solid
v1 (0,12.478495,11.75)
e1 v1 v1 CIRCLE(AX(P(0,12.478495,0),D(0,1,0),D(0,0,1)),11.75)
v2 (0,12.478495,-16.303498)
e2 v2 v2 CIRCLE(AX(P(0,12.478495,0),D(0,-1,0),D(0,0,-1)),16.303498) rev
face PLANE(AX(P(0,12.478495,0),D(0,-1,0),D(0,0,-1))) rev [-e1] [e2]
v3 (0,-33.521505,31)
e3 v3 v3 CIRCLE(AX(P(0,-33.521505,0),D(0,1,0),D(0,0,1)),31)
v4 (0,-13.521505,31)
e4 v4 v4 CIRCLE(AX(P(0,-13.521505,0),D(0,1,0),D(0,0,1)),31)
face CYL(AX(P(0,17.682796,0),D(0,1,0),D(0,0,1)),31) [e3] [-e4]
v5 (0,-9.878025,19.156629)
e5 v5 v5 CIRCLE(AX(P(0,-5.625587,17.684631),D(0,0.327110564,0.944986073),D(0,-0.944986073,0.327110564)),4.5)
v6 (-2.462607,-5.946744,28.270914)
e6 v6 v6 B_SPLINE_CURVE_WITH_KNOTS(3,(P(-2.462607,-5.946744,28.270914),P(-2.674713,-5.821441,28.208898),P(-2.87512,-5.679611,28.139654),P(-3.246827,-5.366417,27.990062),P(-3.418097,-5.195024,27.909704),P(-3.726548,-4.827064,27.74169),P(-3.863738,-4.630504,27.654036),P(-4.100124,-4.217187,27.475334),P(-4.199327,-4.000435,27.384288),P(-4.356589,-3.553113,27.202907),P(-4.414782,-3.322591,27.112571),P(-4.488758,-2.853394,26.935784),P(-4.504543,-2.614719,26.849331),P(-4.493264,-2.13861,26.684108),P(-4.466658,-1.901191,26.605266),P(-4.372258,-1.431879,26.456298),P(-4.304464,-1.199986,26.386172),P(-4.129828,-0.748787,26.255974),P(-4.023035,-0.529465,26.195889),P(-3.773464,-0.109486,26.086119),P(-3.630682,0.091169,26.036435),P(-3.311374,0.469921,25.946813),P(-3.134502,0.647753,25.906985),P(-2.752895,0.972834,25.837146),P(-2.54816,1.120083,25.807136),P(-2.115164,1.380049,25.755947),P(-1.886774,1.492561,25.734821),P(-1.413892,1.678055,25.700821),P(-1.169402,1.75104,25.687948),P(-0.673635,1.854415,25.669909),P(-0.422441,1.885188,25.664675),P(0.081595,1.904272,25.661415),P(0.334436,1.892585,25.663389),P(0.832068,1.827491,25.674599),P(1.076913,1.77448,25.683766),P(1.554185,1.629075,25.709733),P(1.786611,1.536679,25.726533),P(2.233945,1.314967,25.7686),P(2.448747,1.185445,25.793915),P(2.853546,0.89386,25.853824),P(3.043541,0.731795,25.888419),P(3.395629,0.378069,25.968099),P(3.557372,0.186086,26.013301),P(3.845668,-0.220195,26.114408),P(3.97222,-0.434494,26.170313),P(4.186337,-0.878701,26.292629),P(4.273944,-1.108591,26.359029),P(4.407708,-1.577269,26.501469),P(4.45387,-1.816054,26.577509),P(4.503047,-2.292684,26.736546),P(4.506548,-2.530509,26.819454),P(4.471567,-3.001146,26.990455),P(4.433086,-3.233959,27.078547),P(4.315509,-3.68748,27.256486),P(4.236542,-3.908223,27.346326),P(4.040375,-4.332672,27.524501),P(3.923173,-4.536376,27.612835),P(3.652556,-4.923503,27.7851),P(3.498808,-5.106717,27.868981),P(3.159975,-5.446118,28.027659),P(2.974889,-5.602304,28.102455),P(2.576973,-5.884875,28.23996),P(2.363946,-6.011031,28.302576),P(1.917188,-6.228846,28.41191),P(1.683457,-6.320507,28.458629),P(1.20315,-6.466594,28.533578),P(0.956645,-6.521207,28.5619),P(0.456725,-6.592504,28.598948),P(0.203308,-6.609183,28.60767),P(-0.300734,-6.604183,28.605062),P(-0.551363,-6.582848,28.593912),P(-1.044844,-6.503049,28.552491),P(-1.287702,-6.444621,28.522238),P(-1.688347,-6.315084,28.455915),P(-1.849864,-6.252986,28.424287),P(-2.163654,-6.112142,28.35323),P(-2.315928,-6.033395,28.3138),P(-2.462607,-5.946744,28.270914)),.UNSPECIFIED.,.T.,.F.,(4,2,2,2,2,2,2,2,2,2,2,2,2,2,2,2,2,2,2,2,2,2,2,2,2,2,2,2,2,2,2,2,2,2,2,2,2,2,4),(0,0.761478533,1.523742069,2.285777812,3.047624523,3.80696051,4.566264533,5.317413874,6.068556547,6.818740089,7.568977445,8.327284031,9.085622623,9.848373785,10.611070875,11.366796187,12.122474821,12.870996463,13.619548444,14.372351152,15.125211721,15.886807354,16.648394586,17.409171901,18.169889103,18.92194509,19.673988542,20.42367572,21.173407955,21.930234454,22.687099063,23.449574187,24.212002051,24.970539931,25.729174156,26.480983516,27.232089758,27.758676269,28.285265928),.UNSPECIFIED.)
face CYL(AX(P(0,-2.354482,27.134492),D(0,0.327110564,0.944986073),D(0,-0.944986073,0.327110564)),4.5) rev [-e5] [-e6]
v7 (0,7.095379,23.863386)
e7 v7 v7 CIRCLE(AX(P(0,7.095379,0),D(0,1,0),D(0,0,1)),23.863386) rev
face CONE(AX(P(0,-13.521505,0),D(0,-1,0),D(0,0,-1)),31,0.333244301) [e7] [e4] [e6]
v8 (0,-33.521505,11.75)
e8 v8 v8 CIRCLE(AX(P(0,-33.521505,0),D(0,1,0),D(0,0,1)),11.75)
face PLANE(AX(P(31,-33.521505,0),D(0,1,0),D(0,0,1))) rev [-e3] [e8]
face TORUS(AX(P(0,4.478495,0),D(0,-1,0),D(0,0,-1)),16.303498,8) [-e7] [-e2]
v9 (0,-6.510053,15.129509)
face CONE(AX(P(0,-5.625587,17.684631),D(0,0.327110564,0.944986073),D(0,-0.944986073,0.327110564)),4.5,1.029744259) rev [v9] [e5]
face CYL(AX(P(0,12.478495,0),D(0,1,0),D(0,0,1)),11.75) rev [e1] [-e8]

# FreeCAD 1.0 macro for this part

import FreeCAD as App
import Part
import Sketcher

V = App.Vector
Q = App.Units.Quantity


def edges_at(feature, points):
    """Names of the edges that pass closest to the given points."""
    edges = feature.Shape.Edges
    near = lambda p: min(range(len(edges)), key=lambda i: edges[i].distToShape(Part.Vertex(*p))[0])
    return sorted({f"Edge{near(p) + 1}" for p in points})

doc = App.newDocument("Part")
body = doc.addObject("PartDesign::Body", "Body")

# Sketch on XY plane
sketch1 = body.newObject("Sketcher::SketchObject", "Sketch")
sketch1.AttachmentSupport = (doc.getObject("XY_Plane"), [""])
sketch1.MapMode = "FlatFace"
sketch1.addGeometry([
    Part.LineSegment(V(22, 12.478495, 0), V(0, 12.478495, 0)),  # 0
    Part.LineSegment(V(0, 12.478495, 0), V(0, -33.521505, 0)),  # 1
    Part.LineSegment(V(0, -33.521505, 0), V(31, -33.521505, 0)),  # 2
    Part.LineSegment(V(31, -33.521505, 0), V(31, -13.521505, 0)),  # 3
    Part.LineSegment(V(31, -13.521505, 0), V(22, 12.478495, 0)),  # 4
], False)
sketch1.addConstraint([
    Sketcher.Constraint("Coincident", 0, 2, 1, 1),
    Sketcher.Constraint("Coincident", 1, 2, 2, 1),
    Sketcher.Constraint("Coincident", 2, 2, 3, 1),
    Sketcher.Constraint("Coincident", 3, 2, 4, 1),
    Sketcher.Constraint("Coincident", 4, 2, 0, 1),
    Sketcher.Constraint("Horizontal", 0),
    Sketcher.Constraint("Vertical", 1),
    Sketcher.Constraint("Horizontal", 2),
    Sketcher.Constraint("Vertical", 3),
    Sketcher.Constraint("PointOnObject", 0, 2, -2),
    Sketcher.Constraint("DistanceX", 0, 2, 0, 1, Q("22 mm")),
    Sketcher.Constraint("DistanceX", 2, 1, 2, 2, Q("31 mm")),
    Sketcher.Constraint("DistanceY", 1, 2, 1, 1, Q("46 mm")),
    Sketcher.Constraint("DistanceY", 3, 1, 3, 2, Q("20 mm")),
    Sketcher.Constraint("DistanceY", -1, 1, 0, 2, Q("12.478495 mm")),
])
revolution = body.newObject("PartDesign::Revolution", "Revolution")
revolution.Profile = sketch1
revolution.ReferenceAxis = (sketch1, ["V_Axis"])
revolution.Angle = 360

# Sketch on XZ plane
sketch2 = body.newObject("Sketcher::SketchObject", "Sketch001")
sketch2.AttachmentSupport = (doc.getObject("XZ_Plane"), [""])
sketch2.MapMode = "FlatFace"
sketch2.AttachmentOffset = App.Placement(V(0, 0, -12.478495), App.Rotation())
sketch2.addGeometry(Part.Circle(V(0, 0, 0), V(0, 0, 1), 11.75), False)
sketch2.addConstraint([
    Sketcher.Constraint("Coincident", 0, 3, -1, 1),
    Sketcher.Constraint("Diameter", 0, Q("23.5 mm")),
])
doc.recompute()
hole = body.newObject("PartDesign::Hole", "Hole")
hole.Profile = sketch2
hole.ThreadType = "None"
hole.Diameter = 23.5
hole.DepthType = "ThroughAll"
hole.Reversed = True
doc.recompute()

fillet = body.newObject("PartDesign::Fillet", "Fillet")
fillet.Base = (hole, edges_at(hole, [(0, 12.478, -22)]))
fillet.Radius = 8

# Sketch on an angled plane
sketch3 = body.newObject("Sketcher::SketchObject", "Sketch002")
sketch3.Placement = App.Placement(V(0, 8.135744, 23.50326), App.Rotation(V(1, 0, 0), V(0, 0.944986073, -0.327110564), V(0, 0.327110564, 0.944986073), "ZXY"))
sketch3.addGeometry(Part.Circle(V(0, -11.100931, 0), V(0, 0, 1), 4.5), False)
sketch3.addConstraint([
    Sketcher.Constraint("PointOnObject", 0, 3, -2),
    Sketcher.Constraint("Diameter", 0, Q("9 mm")),
    Sketcher.Constraint("DistanceY", 0, 3, -1, 1, Q("11.100931 mm")),
])
doc.recompute()
hole2 = body.newObject("PartDesign::Hole", "Hole001")
hole2.Profile = sketch3
hole2.ThreadType = "None"
hole2.Diameter = 9
hole2.DepthType = "Dimension"
hole2.Depth = 10
hole2.DrillPoint = "Angled"
hole2.DrillPointAngle = 118

doc.recompute()
